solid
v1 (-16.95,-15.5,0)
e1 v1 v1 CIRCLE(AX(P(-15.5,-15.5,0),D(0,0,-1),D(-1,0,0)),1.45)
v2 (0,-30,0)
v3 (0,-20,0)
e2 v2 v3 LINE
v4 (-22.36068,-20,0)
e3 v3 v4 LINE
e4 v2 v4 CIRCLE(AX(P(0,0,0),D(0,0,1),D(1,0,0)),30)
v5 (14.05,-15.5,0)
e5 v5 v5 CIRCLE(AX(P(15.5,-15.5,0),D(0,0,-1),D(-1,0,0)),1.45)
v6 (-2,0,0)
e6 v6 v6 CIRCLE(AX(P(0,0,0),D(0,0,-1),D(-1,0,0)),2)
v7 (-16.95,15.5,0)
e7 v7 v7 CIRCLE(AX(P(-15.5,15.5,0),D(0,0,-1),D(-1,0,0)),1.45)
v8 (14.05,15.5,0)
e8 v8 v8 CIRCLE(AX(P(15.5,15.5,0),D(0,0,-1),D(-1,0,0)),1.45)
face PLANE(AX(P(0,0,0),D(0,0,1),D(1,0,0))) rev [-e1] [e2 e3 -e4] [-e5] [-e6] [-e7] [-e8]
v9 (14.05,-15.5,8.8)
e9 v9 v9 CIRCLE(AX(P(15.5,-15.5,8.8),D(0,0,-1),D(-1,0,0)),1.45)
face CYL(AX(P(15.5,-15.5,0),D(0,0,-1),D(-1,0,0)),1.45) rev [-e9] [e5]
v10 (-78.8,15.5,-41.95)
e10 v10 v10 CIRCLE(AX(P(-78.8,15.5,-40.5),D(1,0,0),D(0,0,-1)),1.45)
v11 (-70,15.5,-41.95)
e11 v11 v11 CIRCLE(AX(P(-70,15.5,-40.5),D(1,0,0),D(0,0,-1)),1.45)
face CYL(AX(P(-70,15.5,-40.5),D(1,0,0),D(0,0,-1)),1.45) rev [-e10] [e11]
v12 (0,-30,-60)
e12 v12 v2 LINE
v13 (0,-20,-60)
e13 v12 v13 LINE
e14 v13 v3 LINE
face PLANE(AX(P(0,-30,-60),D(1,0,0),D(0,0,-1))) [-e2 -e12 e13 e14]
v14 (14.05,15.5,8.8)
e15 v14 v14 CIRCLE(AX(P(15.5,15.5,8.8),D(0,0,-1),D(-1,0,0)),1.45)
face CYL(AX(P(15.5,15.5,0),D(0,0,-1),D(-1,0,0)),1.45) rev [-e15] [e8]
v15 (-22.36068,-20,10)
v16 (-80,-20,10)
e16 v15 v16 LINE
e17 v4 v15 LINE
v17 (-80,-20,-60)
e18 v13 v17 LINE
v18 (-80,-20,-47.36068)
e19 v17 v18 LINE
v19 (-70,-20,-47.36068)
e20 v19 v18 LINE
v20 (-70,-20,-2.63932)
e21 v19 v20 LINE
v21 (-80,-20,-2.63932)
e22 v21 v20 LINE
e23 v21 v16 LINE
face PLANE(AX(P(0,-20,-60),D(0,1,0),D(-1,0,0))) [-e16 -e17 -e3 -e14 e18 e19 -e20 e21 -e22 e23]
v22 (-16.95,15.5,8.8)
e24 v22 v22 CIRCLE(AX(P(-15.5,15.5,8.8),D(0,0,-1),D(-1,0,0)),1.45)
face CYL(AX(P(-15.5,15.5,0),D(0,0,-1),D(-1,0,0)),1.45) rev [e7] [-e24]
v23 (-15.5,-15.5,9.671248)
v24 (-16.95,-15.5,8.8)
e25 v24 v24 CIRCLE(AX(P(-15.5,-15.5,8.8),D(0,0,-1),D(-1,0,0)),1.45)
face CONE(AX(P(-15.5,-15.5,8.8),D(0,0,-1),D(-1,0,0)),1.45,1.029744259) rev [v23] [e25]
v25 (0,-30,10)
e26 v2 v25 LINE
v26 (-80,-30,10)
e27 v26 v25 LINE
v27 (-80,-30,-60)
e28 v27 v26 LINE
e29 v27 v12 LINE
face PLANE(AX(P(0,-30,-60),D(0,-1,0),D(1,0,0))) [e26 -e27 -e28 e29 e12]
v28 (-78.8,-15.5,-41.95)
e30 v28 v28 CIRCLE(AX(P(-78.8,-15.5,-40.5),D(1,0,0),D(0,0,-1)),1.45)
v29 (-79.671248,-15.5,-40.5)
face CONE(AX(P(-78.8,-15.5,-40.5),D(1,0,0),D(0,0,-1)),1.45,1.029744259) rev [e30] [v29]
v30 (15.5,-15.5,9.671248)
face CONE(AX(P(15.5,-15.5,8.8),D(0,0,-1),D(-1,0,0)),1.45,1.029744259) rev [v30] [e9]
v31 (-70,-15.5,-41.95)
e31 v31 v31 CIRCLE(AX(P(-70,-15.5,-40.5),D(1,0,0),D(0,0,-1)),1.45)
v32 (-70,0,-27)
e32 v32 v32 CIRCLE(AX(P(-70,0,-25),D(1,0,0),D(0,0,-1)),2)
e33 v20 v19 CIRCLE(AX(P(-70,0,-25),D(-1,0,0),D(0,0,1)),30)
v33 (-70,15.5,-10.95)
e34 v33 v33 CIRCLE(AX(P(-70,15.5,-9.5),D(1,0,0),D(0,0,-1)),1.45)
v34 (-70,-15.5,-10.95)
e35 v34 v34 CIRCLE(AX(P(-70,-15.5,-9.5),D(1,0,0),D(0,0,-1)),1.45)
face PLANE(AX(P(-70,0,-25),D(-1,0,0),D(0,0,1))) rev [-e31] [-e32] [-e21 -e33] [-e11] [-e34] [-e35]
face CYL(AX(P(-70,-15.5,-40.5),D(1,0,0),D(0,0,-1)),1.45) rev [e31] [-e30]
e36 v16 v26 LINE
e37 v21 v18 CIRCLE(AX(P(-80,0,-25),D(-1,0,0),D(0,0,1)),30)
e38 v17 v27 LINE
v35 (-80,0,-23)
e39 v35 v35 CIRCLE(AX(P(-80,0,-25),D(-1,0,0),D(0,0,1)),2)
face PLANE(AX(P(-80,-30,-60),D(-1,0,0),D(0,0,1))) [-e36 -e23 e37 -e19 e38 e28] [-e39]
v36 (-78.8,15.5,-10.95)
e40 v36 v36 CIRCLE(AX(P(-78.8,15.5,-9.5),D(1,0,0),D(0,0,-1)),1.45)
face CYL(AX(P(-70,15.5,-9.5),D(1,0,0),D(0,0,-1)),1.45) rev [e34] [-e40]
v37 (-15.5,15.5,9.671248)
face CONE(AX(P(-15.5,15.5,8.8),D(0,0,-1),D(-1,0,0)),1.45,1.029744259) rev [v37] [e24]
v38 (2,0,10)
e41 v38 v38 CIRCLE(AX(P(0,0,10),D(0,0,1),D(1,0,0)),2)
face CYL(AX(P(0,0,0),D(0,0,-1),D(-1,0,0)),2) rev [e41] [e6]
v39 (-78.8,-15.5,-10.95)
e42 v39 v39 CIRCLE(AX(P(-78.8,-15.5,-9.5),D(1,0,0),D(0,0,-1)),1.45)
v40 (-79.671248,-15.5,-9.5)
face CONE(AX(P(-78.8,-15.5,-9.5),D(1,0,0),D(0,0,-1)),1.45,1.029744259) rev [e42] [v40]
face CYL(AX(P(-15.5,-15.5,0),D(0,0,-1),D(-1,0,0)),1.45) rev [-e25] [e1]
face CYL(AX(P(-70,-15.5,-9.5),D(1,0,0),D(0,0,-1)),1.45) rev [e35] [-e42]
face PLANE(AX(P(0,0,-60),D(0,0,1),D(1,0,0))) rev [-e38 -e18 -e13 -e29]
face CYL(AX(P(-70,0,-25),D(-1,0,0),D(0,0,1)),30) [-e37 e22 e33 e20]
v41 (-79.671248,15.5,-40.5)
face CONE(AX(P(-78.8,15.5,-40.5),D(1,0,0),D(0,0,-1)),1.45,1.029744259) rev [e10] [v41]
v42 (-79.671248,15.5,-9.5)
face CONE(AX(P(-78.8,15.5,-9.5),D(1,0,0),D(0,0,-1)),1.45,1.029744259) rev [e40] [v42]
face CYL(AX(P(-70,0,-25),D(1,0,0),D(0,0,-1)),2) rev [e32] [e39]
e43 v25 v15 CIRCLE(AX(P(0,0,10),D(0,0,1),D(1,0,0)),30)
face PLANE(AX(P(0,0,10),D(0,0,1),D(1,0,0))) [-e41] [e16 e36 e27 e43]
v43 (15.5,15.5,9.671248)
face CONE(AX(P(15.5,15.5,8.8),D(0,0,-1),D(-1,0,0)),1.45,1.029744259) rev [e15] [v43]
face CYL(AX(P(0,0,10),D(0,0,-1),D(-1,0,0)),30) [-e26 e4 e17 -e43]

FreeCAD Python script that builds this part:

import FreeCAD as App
import Part
import Sketcher
Q = App.Units.Quantity


def add_polygon(sketch, points):
    """Adds a closed chain of lines whose ends are joined by coincident constraints."""
    first, n = sketch.GeometryCount, len(points)
    for a, b in zip(points, points[1:] + points[:1]):
        sketch.addGeometry(Part.LineSegment(App.Vector(*a, 0), App.Vector(*b, 0)), False)
    for i in range(n):
        sketch.addConstraint(Sketcher.Constraint("Coincident", first + i, 2, first + (i + 1) % n, 1))

doc = App.newDocument("Part")
params = doc.addObject("Spreadsheet::Sheet", "Params")
for row, (alias, value) in enumerate([
    ("sketch1_diameter", "60 mm"),
    ("pad1_length", "10 mm"),
    ("sketch2_width", "80 mm"),
    ("sketch2_height", "10 mm"),
    ("pad2_length", "70 mm"),
    ("sketch3_diameter", "60 mm"),
    ("pad3_length", "10 mm"),
    ("sketch4_diameter", "4 mm"),
    ("hole_diameter", "4 mm"),
    ("hole_depth", "10.1 mm"),
    ("sketch5_diameter", "2.9 mm"),
    ("hole2_diameter", "2.9 mm"),
    ("hole2_depth", "8.8 mm"),
    ("sketch6_diameter", "4 mm"),
    ("hole3_diameter", "4 mm"),
    ("hole3_depth", "10.1 mm"),
    ("sketch7_diameter", "2.9 mm"),
    ("hole4_diameter", "2.9 mm"),
    ("hole4_depth", "8.8 mm"),
], start=1):
    params.set(f"A{row}", alias)
    params.set(f"B{row}", "=" + value)
    params.setAlias(f"B{row}", alias)

body = doc.addObject("PartDesign::Body", "Body")

# Sketch on XY plane
sketch1 = body.newObject("Sketcher::SketchObject", "Sketch")
sketch1.AttachmentSupport = (doc.getObject("XY_Plane"), [""])
sketch1.MapMode = "FlatFace"
sketch1.addGeometry(Part.Circle(App.Vector(0, 0, 0), App.Vector(0, 0, 1), 30), False)
sketch1.addConstraint([
    Sketcher.Constraint("Coincident", 0, 3, -1, 1),
    Sketcher.Constraint("Diameter", 0, Q("60 mm")),
])
sketch1.setExpression("Constraints[1]", "Params.sketch1_diameter")
pad1 = body.newObject("PartDesign::Pad", "Pad")
pad1.Profile = sketch1
pad1.setExpression("Length", "Params.pad1_length")

# Sketch on XY plane
sketch2 = body.newObject("Sketcher::SketchObject", "Sketch001")
sketch2.AttachmentSupport = (doc.getObject("XY_Plane"), [""])
sketch2.MapMode = "FlatFace"
sketch2.AttachmentOffset = App.Placement(App.Vector(0, 0, 10), App.Rotation())
add_polygon(sketch2, [(-80, -20), (-80, -30), (0, -30), (0, -20)])  # lines 0-3
sketch2.addConstraint([
    Sketcher.Constraint("Vertical", 0),
    Sketcher.Constraint("Horizontal", 1),
    Sketcher.Constraint("Vertical", 2),
    Sketcher.Constraint("Horizontal", 3),
    Sketcher.Constraint("PointOnObject", 1, 2, -2),
    Sketcher.Constraint("DistanceX", 1, 1, 1, 2, Q("80 mm")),
    Sketcher.Constraint("DistanceY", 0, 2, 0, 1, Q("10 mm")),
    Sketcher.Constraint("DistanceY", 0, 2, -1, 1, Q("30 mm")),
])
sketch2.setExpression("Constraints[9]", "Params.sketch2_width")
sketch2.setExpression("Constraints[10]", "Params.sketch2_height")
pad2 = body.newObject("PartDesign::Pad", "Pad001")
pad2.Profile = sketch2
pad2.setExpression("Length", "Params.pad2_length")
pad2.Reversed = True

# Sketch on YZ plane
sketch3 = body.newObject("Sketcher::SketchObject", "Sketch002")
sketch3.AttachmentSupport = (doc.getObject("YZ_Plane"), [""])
sketch3.MapMode = "FlatFace"
sketch3.AttachmentOffset = App.Placement(App.Vector(0, 0, -80), App.Rotation())
sketch3.addGeometry(Part.Circle(App.Vector(0, -25, 0), App.Vector(0, 0, 1), 30), False)
sketch3.addConstraint([
    Sketcher.Constraint("PointOnObject", 0, 3, -2),
    Sketcher.Constraint("Diameter", 0, Q("60 mm")),
    Sketcher.Constraint("DistanceY", 0, 3, -1, 1, Q("25 mm")),
])
sketch3.setExpression("Constraints[1]", "Params.sketch3_diameter")
pad3 = body.newObject("PartDesign::Pad", "Pad002")
pad3.Profile = sketch3
pad3.setExpression("Length", "Params.pad3_length")

# Sketch on XY plane
sketch4 = body.newObject("Sketcher::SketchObject", "Sketch003")
sketch4.AttachmentSupport = (doc.getObject("XY_Plane"), [""])
sketch4.MapMode = "FlatFace"
sketch4.addGeometry(Part.Circle(App.Vector(0, 0, 0), App.Vector(0, 0, 1), 2), False)
sketch4.addConstraint([
    Sketcher.Constraint("Coincident", 0, 3, -1, 1),
    Sketcher.Constraint("Diameter", 0, Q("4 mm")),
])
sketch4.setExpression("Constraints[1]", "Params.sketch4_diameter")
doc.recompute()
hole = body.newObject("PartDesign::Hole", "Hole")
hole.Profile = sketch4
hole.ThreadType = "None"
hole.setExpression("Diameter", "Params.hole_diameter")
hole.DepthType = "Dimension"
hole.setExpression("Depth", "Params.hole_depth")
hole.DrillPoint = "Angled"
hole.DrillPointAngle = 118
hole.Reversed = True

# Sketch on XY plane
sketch5 = body.newObject("Sketcher::SketchObject", "Sketch004")
sketch5.AttachmentSupport = (doc.getObject("XY_Plane"), [""])
sketch5.MapMode = "FlatFace"
sketch5.addGeometry([
    Part.Circle(App.Vector(15.5, 15.5, 0), App.Vector(0, 0, 1), 1.45),
    Part.Circle(App.Vector(-15.5, 15.5, 0), App.Vector(0, 0, 1), 1.45),
    Part.Circle(App.Vector(-15.5, -15.5, 0), App.Vector(0, 0, 1), 1.45),
    Part.Circle(App.Vector(15.5, -15.5, 0), App.Vector(0, 0, 1), 1.45),
], False)
sketch5.addConstraint([
    Sketcher.Constraint("Equal", 0, 1),
    Sketcher.Constraint("Equal", 1, 2),
    Sketcher.Constraint("Equal", 2, 3),
    Sketcher.Constraint("Symmetric", 0, 3, 2, 3, -1, 1),
    Sketcher.Constraint("Symmetric", 1, 3, 3, 3, -1, 1),
    Sketcher.Constraint("Symmetric", 0, 3, 1, 3, -2),
    Sketcher.Constraint("Diameter", 0, Q("2.9 mm")),
    Sketcher.Constraint("DistanceX", 1, 3, 0, 3, Q("31 mm")),
    Sketcher.Constraint("DistanceY", 2, 3, 1, 3, Q("31 mm")),
])
sketch5.setExpression("Constraints[6]", "Params.sketch5_diameter")
doc.recompute()
hole2 = body.newObject("PartDesign::Hole", "Hole001")
hole2.Profile = sketch5
hole2.ThreadType = "None"
hole2.setExpression("Diameter", "Params.hole2_diameter")
hole2.DepthType = "Dimension"
hole2.setExpression("Depth", "Params.hole2_depth")
hole2.DrillPoint = "Angled"
hole2.DrillPointAngle = 118
hole2.Reversed = True

# Sketch on YZ plane
sketch6 = body.newObject("Sketcher::SketchObject", "Sketch005")
sketch6.AttachmentSupport = (doc.getObject("YZ_Plane"), [""])
sketch6.MapMode = "FlatFace"
sketch6.AttachmentOffset = App.Placement(App.Vector(0, 0, -70), App.Rotation())
sketch6.addGeometry(Part.Circle(App.Vector(0, -25, 0), App.Vector(0, 0, 1), 2), False)
sketch6.addConstraint([
    Sketcher.Constraint("PointOnObject", 0, 3, -2),
    Sketcher.Constraint("Diameter", 0, Q("4 mm")),
    Sketcher.Constraint("DistanceY", 0, 3, -1, 1, Q("25 mm")),
])
sketch6.setExpression("Constraints[1]", "Params.sketch6_diameter")
doc.recompute()
hole3 = body.newObject("PartDesign::Hole", "Hole002")
hole3.Profile = sketch6
hole3.ThreadType = "None"
hole3.setExpression("Diameter", "Params.hole3_diameter")
hole3.DepthType = "Dimension"
hole3.setExpression("Depth", "Params.hole3_depth")
hole3.DrillPoint = "Angled"
hole3.DrillPointAngle = 118

# Sketch on YZ plane
sketch7 = body.newObject("Sketcher::SketchObject", "Sketch006")
sketch7.AttachmentSupport = (doc.getObject("YZ_Plane"), [""])
sketch7.MapMode = "FlatFace"
sketch7.AttachmentOffset = App.Placement(App.Vector(0, 0, -70), App.Rotation())
sketch7.addGeometry([
    Part.Circle(App.Vector(15.5, -9.5, 0), App.Vector(0, 0, 1), 1.45),
    Part.Circle(App.Vector(15.5, -40.5, 0), App.Vector(0, 0, 1), 1.45),
    Part.Circle(App.Vector(-15.5, -40.5, 0), App.Vector(0, 0, 1), 1.45),
    Part.Circle(App.Vector(-15.5, -9.5, 0), App.Vector(0, 0, 1), 1.45),
], False)
sketch7.addConstraint([
    Sketcher.Constraint("Equal", 0, 1),
    Sketcher.Constraint("Equal", 1, 2),
    Sketcher.Constraint("Equal", 2, 3),
    Sketcher.Constraint("Symmetric", 1, 3, 2, 3, -2),
    Sketcher.Constraint("Symmetric", 0, 3, 3, 3, -2),
    Sketcher.Constraint("Vertical", 0, 3, 1, 3),
    Sketcher.Constraint("Diameter", 0, Q("2.9 mm")),
    Sketcher.Constraint("DistanceY", 1, 3, 0, 3, Q("31 mm")),
    Sketcher.Constraint("DistanceX", 2, 3, 1, 3, Q("31 mm")),
    Sketcher.Constraint("DistanceY", 0, 3, -1, 1, Q("9.5 mm")),
])
sketch7.setExpression("Constraints[6]", "Params.sketch7_diameter")
doc.recompute()
hole4 = body.newObject("PartDesign::Hole", "Hole003")
hole4.Profile = sketch7
hole4.ThreadType = "None"
hole4.setExpression("Diameter", "Params.hole4_diameter")
hole4.DepthType = "Dimension"
hole4.setExpression("Depth", "Params.hole4_depth")
hole4.DrillPoint = "Angled"
hole4.DrillPointAngle = 118

doc.recompute()
